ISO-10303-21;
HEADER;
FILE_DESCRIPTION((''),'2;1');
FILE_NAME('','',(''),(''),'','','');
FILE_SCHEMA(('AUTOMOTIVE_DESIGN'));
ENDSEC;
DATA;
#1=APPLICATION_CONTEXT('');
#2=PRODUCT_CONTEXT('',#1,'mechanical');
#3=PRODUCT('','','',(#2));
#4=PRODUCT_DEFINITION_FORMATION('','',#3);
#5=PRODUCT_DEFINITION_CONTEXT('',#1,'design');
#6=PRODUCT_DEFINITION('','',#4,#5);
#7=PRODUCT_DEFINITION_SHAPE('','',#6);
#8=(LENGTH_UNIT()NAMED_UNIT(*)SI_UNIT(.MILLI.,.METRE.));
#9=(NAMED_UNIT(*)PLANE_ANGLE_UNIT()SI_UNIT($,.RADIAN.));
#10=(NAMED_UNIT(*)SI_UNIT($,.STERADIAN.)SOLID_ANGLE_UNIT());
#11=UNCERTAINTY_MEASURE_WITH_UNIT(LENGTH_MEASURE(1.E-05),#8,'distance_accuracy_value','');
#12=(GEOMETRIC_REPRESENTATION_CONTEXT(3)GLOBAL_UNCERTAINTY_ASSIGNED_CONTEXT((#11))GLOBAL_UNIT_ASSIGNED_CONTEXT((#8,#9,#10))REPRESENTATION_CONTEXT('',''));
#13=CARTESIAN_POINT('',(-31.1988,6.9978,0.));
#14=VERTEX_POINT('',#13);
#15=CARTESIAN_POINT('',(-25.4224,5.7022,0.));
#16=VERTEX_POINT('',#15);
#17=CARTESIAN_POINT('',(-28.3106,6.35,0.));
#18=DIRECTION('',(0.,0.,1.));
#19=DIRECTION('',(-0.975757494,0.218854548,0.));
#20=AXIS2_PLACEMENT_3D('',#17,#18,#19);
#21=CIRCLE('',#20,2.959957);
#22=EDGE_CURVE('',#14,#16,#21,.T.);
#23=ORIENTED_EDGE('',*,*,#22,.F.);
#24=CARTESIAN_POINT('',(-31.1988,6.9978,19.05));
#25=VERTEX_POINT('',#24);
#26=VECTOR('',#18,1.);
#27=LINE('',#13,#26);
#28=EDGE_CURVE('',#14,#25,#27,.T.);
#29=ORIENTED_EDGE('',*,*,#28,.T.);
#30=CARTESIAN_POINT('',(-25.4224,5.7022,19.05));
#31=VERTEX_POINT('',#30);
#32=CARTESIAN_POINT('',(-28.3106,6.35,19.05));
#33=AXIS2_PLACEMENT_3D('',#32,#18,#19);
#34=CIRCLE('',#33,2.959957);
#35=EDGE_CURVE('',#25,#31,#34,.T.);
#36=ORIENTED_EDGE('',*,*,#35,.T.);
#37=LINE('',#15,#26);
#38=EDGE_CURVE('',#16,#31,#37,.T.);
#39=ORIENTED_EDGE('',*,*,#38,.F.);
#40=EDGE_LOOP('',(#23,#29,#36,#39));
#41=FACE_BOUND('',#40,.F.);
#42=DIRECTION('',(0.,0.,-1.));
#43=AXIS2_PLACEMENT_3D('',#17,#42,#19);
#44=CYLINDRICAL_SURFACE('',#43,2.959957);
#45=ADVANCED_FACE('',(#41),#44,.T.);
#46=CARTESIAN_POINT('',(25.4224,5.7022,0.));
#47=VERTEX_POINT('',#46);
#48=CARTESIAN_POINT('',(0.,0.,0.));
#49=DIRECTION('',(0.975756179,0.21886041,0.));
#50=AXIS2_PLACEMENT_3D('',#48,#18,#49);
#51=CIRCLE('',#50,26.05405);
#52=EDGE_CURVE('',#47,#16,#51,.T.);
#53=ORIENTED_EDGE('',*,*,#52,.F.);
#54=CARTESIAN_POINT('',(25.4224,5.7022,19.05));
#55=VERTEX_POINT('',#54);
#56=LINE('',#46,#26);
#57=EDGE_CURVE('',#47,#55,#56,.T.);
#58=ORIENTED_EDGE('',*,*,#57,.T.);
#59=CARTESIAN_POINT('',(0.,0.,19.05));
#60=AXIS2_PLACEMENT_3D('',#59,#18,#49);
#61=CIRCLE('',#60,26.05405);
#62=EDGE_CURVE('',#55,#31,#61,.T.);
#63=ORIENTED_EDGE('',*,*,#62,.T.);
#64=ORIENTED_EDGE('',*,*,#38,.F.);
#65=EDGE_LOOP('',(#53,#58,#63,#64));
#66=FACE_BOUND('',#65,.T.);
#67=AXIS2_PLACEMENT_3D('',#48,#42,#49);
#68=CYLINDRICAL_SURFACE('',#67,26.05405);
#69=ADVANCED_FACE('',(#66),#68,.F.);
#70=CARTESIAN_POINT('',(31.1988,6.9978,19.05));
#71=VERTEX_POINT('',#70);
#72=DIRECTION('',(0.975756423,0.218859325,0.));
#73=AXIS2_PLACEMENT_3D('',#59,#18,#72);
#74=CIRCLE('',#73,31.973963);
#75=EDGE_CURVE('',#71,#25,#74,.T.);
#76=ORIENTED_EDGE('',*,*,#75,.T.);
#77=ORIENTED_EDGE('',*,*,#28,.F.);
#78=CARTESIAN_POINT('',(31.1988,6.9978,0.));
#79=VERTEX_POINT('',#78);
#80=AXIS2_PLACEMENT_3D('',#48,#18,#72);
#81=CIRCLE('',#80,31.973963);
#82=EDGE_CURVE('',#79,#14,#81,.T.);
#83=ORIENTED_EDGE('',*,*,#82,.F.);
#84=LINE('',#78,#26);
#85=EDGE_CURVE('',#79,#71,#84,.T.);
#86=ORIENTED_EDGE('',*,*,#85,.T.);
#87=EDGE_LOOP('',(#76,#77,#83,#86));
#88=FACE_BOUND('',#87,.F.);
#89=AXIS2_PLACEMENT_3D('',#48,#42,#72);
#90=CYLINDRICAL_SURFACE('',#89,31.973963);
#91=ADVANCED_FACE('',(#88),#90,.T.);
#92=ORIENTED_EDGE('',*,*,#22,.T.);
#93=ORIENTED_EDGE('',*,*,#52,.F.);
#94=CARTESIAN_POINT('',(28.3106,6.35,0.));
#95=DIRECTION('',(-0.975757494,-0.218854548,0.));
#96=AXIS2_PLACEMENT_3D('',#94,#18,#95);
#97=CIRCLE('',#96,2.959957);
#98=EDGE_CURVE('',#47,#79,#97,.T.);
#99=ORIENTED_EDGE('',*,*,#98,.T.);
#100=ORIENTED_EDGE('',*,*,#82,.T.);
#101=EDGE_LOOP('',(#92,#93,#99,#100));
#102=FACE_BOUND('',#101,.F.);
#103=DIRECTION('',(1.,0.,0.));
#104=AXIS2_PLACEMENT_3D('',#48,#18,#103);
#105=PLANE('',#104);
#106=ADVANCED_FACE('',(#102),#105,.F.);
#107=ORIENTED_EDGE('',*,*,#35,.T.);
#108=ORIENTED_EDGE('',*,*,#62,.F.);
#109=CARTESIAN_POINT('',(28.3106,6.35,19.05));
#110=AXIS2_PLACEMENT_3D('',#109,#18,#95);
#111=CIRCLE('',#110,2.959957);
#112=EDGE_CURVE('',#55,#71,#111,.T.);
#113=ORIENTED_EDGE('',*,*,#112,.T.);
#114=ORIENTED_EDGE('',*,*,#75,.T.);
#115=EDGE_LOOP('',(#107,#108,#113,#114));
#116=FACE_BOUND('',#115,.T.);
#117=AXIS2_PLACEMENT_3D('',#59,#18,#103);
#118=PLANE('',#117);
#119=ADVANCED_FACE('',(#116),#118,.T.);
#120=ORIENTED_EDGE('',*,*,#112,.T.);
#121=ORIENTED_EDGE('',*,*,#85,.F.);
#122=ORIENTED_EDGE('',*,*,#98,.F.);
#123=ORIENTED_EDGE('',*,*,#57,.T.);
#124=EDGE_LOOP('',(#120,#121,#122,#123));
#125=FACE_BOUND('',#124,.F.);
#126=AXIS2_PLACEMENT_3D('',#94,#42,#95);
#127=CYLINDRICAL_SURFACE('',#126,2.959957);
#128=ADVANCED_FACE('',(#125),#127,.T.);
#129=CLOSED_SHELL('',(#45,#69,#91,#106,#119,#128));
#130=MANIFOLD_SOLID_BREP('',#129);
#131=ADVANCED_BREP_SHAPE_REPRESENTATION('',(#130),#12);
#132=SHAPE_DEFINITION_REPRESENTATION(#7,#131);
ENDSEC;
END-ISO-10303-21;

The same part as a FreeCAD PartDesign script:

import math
import FreeCAD as App
import Part
import Sketcher
from FreeCAD import Vector
Q = App.Units.Quantity

doc = App.newDocument("Part")
body = doc.addObject("PartDesign::Body", "Body")

sketch1 = doc.addObject("Sketcher::SketchObject", "Sketch")
body.addObject(sketch1)
sketch1.AttachmentSupport = (doc.XY_Plane, [""])
sketch1.MapMode = "FlatFace"
sketch1.addGeometry([
    Part.ArcOfCircle(Part.Circle(Vector(28.3, 6.3, 0), Vector(0, 0, 1), 3), math.radians(-167), math.radians(13)),
    Part.ArcOfCircle(Part.Circle(Vector(0, 0, 0), Vector(0, 0, 1), 32), math.radians(13), math.radians(167)),
    Part.ArcOfCircle(Part.Circle(Vector(-28.3, 6.3, 0), Vector(0, 0, 1), 3), math.radians(167), math.radians(347)),
    Part.ArcOfCircle(Part.Circle(Vector(0, 0, 0), Vector(0, 0, 1), 26.1), math.radians(13), math.radians(167)),
], False)
sketch1.addConstraint([
    Sketcher.Constraint("Tangent", 0, 2, 1, 1),
    Sketcher.Constraint("Tangent", 1, 2, 2, 1),
    Sketcher.Constraint("Tangent", 2, 2, 3, 2),
    Sketcher.Constraint("Tangent", 3, 1, 0, 1),
    Sketcher.Constraint("Coincident", 1, 3, -1, 1),
    Sketcher.Constraint("Coincident", 3, 3, -1, 1),
    Sketcher.Constraint("Horizontal", 0, 3, 2, 3),
    Sketcher.Constraint("DistanceY", -1, 1, 0, 3, Q("0.25 in")),
    Sketcher.Constraint("Radius", 0, Q("2.96 mm")),
    Sketcher.Constraint("Radius", 3, Q("26.054 mm")),
])
pad1 = doc.addObject("PartDesign::Pad", "Pad")
body.addObject(pad1)
pad1.Profile = sketch1
pad1.Length = Q("0.75 in")

doc.recompute()
